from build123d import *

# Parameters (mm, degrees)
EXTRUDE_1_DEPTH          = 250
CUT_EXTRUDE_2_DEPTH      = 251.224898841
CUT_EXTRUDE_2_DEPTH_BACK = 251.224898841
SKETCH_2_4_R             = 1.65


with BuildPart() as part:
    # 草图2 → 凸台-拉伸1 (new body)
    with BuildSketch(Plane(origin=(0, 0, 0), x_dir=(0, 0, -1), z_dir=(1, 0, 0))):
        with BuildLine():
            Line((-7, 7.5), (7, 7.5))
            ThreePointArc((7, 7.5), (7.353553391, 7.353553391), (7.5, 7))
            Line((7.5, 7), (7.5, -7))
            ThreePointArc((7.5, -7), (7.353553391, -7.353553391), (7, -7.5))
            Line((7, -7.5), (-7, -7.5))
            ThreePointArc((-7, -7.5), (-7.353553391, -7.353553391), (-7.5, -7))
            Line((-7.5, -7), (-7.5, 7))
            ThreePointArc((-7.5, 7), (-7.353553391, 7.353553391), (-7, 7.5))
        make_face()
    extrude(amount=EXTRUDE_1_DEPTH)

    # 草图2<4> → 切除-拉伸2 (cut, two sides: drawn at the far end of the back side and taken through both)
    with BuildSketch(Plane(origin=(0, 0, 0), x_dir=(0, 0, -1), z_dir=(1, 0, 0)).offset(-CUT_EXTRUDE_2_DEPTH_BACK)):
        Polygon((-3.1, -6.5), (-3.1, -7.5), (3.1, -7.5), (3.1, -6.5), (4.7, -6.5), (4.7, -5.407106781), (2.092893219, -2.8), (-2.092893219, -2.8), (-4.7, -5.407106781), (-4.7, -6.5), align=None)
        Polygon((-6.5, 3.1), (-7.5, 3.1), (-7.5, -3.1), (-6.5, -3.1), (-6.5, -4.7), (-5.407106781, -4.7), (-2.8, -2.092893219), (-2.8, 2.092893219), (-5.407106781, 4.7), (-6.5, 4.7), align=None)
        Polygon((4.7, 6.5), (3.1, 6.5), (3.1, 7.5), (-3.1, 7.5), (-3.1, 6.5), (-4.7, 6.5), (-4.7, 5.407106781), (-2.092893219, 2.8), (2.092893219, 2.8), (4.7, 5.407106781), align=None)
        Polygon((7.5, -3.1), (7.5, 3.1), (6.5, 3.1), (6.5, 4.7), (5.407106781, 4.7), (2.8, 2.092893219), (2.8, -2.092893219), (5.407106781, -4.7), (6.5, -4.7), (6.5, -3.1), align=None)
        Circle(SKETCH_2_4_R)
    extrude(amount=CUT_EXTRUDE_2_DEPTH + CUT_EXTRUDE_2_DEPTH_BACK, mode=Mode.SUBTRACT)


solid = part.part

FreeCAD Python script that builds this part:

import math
import FreeCAD as App
import Part
import Sketcher

V = App.Vector

doc = App.newDocument("Part")
body = doc.addObject("PartDesign::Body", "Body")

sketch1 = body.newObject("Sketcher::SketchObject", "Sketch")
sketch1.AttachmentSupport = (doc.getObject("YZ_Plane"), [""])
sketch1.MapMode = "FlatFace"
sketch1.addGeometry([
    Part.LineSegment(V(7.5, -7, 0), V(7.5, 7, 0)),
    Part.ArcOfCircle(Part.Circle(V(7, 7, 0), V(0, 0, 1), 0.5), math.radians(0), math.radians(90)),
    Part.LineSegment(V(7, 7.5, 0), V(-7, 7.5, 0)),
    Part.ArcOfCircle(Part.Circle(V(-7, 7, 0), V(0, 0, 1), 0.5), math.radians(90), math.radians(180)),
    Part.LineSegment(V(-7.5, 7, 0), V(-7.5, -7, 0)),
    Part.ArcOfCircle(Part.Circle(V(-7, -7, 0), V(0, 0, 1), 0.5), math.radians(180), math.radians(270)),
    Part.LineSegment(V(-7, -7.5, 0), V(7, -7.5, 0)),
    Part.ArcOfCircle(Part.Circle(V(7, -7, 0), V(0, 0, 1), 0.5), math.radians(-90), math.radians(0)),
], False)
sketch1.addConstraint([
    Sketcher.Constraint("Tangent", 0, 2, 1, 1),
    Sketcher.Constraint("Tangent", 1, 2, 2, 1),
    Sketcher.Constraint("Tangent", 2, 2, 3, 1),
    Sketcher.Constraint("Tangent", 3, 2, 4, 1),
    Sketcher.Constraint("Tangent", 4, 2, 5, 1),
    Sketcher.Constraint("Tangent", 5, 2, 6, 1),
    Sketcher.Constraint("Tangent", 6, 2, 7, 1),
    Sketcher.Constraint("Tangent", 7, 2, 0, 1),
    Sketcher.Constraint("Vertical", 0),
    Sketcher.Constraint("Horizontal", 2),
    Sketcher.Constraint("Vertical", 4),
    Sketcher.Constraint("Horizontal", 6),
    Sketcher.Constraint("Equal", 1, 3),
    Sketcher.Constraint("Equal", 3, 5),
    Sketcher.Constraint("Equal", 5, 7),
    Sketcher.Constraint("Symmetric", 1, 3, 5, 3, -1, 1),
    Sketcher.Constraint("Equal", 6, 0),
    Sketcher.Constraint("Radius", 1, 0.5),
    Sketcher.Constraint("DistanceX", 2, 2, 2, 1, 14.0),
])
pad1 = body.newObject("PartDesign::Pad", "Pad")
pad1.Profile = sketch1
pad1.Length = 250

sketch2 = body.newObject("Sketcher::SketchObject", "Sketch001")
sketch2.AttachmentSupport = (doc.getObject("YZ_Plane"), [""])
sketch2.MapMode = "FlatFace"
sketch2.addGeometry([
    Part.LineSegment(V(-6.5, 3.1, 0), V(-7.5, 3.1, 0)),
    Part.LineSegment(V(-7.5, 3.1, 0), V(-7.5, -3.1, 0)),
    Part.LineSegment(V(-7.5, -3.1, 0), V(-6.5, -3.1, 0)),
    Part.LineSegment(V(-6.5, -3.1, 0), V(-6.5, -4.7, 0)),
    Part.LineSegment(V(-6.5, -4.7, 0), V(-5.4, -4.7, 0)),
    Part.LineSegment(V(-5.4, -4.7, 0), V(-2.8, -2.1, 0)),
    Part.LineSegment(V(-2.8, -2.1, 0), V(-2.8, 2.1, 0)),
    Part.LineSegment(V(-2.8, 2.1, 0), V(-5.4, 4.7, 0)),
    Part.LineSegment(V(-5.4, 4.7, 0), V(-6.5, 4.7, 0)),
    Part.LineSegment(V(-6.5, 4.7, 0), V(-6.5, 3.1, 0)),
    Part.LineSegment(V(3.1, 6.5, 0), V(3.1, 7.5, 0)),
    Part.LineSegment(V(3.1, 7.5, 0), V(-3.1, 7.5, 0)),
    Part.LineSegment(V(-3.1, 7.5, 0), V(-3.1, 6.5, 0)),
    Part.LineSegment(V(-3.1, 6.5, 0), V(-4.7, 6.5, 0)),
    Part.LineSegment(V(-4.7, 6.5, 0), V(-4.7, 5.4, 0)),
    Part.LineSegment(V(-4.7, 5.4, 0), V(-2.1, 2.8, 0)),
    Part.LineSegment(V(-2.1, 2.8, 0), V(2.1, 2.8, 0)),
    Part.LineSegment(V(2.1, 2.8, 0), V(4.7, 5.4, 0)),
    Part.LineSegment(V(4.7, 5.4, 0), V(4.7, 6.5, 0)),
    Part.LineSegment(V(4.7, 6.5, 0), V(3.1, 6.5, 0)),
    Part.LineSegment(V(6.5, -4.7, 0), V(6.5, -3.1, 0)),
    Part.LineSegment(V(6.5, -3.1, 0), V(7.5, -3.1, 0)),
    Part.LineSegment(V(7.5, -3.1, 0), V(7.5, 3.1, 0)),
    Part.LineSegment(V(7.5, 3.1, 0), V(6.5, 3.1, 0)),
    Part.LineSegment(V(6.5, 3.1, 0), V(6.5, 4.7, 0)),
    Part.LineSegment(V(6.5, 4.7, 0), V(5.4, 4.7, 0)),
    Part.LineSegment(V(5.4, 4.7, 0), V(2.8, 2.1, 0)),
    Part.LineSegment(V(2.8, 2.1, 0), V(2.8, -2.1, 0)),
    Part.LineSegment(V(2.8, -2.1, 0), V(5.4, -4.7, 0)),
    Part.LineSegment(V(5.4, -4.7, 0), V(6.5, -4.7, 0)),
    Part.LineSegment(V(-3.1, -7.5, 0), V(3.1, -7.5, 0)),
    Part.LineSegment(V(3.1, -7.5, 0), V(3.1, -6.5, 0)),
    Part.LineSegment(V(3.1, -6.5, 0), V(4.7, -6.5, 0)),
    Part.LineSegment(V(4.7, -6.5, 0), V(4.7, -5.4, 0)),
    Part.LineSegment(V(4.7, -5.4, 0), V(2.1, -2.8, 0)),
    Part.LineSegment(V(2.1, -2.8, 0), V(-2.1, -2.8, 0)),
    Part.LineSegment(V(-2.1, -2.8, 0), V(-4.7, -5.4, 0)),
    Part.LineSegment(V(-4.7, -5.4, 0), V(-4.7, -6.5, 0)),
    Part.LineSegment(V(-4.7, -6.5, 0), V(-3.1, -6.5, 0)),
    Part.LineSegment(V(-3.1, -6.5, 0), V(-3.1, -7.5, 0)),
    Part.Circle(V(0, 0, 0), V(0, 0, 1), 1.6),
], False)
sketch2.addConstraint([
    Sketcher.Constraint("Coincident", 0, 2, 1, 1),
    Sketcher.Constraint("Coincident", 1, 2, 2, 1),
    Sketcher.Constraint("Coincident", 2, 2, 3, 1),
    Sketcher.Constraint("Coincident", 3, 2, 4, 1),
    Sketcher.Constraint("Coincident", 4, 2, 5, 1),
    Sketcher.Constraint("Coincident", 5, 2, 6, 1),
    Sketcher.Constraint("Coincident", 6, 2, 7, 1),
    Sketcher.Constraint("Coincident", 7, 2, 8, 1),
    Sketcher.Constraint("Coincident", 8, 2, 9, 1),
    Sketcher.Constraint("Coincident", 9, 2, 0, 1),
    Sketcher.Constraint("Coincident", 10, 2, 11, 1),
    Sketcher.Constraint("Coincident", 11, 2, 12, 1),
    Sketcher.Constraint("Coincident", 12, 2, 13, 1),
    Sketcher.Constraint("Coincident", 13, 2, 14, 1),
    Sketcher.Constraint("Coincident", 14, 2, 15, 1),
    Sketcher.Constraint("Coincident", 15, 2, 16, 1),
    Sketcher.Constraint("Coincident", 16, 2, 17, 1),
    Sketcher.Constraint("Coincident", 17, 2, 18, 1),
    Sketcher.Constraint("Coincident", 18, 2, 19, 1),
    Sketcher.Constraint("Coincident", 19, 2, 10, 1),
    Sketcher.Constraint("Coincident", 20, 2, 21, 1),
    Sketcher.Constraint("Coincident", 21, 2, 22, 1),
    Sketcher.Constraint("Coincident", 22, 2, 23, 1),
    Sketcher.Constraint("Coincident", 23, 2, 24, 1),
    Sketcher.Constraint("Coincident", 24, 2, 25, 1),
    Sketcher.Constraint("Coincident", 25, 2, 26, 1),
    Sketcher.Constraint("Coincident", 26, 2, 27, 1),
    Sketcher.Constraint("Coincident", 27, 2, 28, 1),
    Sketcher.Constraint("Coincident", 28, 2, 29, 1),
    Sketcher.Constraint("Coincident", 29, 2, 20, 1),
    Sketcher.Constraint("Coincident", 30, 2, 31, 1),
    Sketcher.Constraint("Coincident", 31, 2, 32, 1),
    Sketcher.Constraint("Coincident", 32, 2, 33, 1),
    Sketcher.Constraint("Coincident", 33, 2, 34, 1),
    Sketcher.Constraint("Coincident", 34, 2, 35, 1),
    Sketcher.Constraint("Coincident", 35, 2, 36, 1),
    Sketcher.Constraint("Coincident", 36, 2, 37, 1),
    Sketcher.Constraint("Coincident", 37, 2, 38, 1),
    Sketcher.Constraint("Coincident", 38, 2, 39, 1),
    Sketcher.Constraint("Coincident", 39, 2, 30, 1),
    Sketcher.Constraint("Horizontal", 0),
    Sketcher.Constraint("Vertical", 1),
    Sketcher.Constraint("Horizontal", 2),
    Sketcher.Constraint("Vertical", 3),
    Sketcher.Constraint("Horizontal", 4),
    Sketcher.Constraint("Vertical", 6),
    Sketcher.Constraint("Horizontal", 8),
    Sketcher.Constraint("Vertical", 9),
    Sketcher.Constraint("Vertical", 10),
    Sketcher.Constraint("Horizontal", 11),
    Sketcher.Constraint("Vertical", 12),
    Sketcher.Constraint("Horizontal", 13),
    Sketcher.Constraint("Vertical", 14),
    Sketcher.Constraint("Horizontal", 16),
    Sketcher.Constraint("Vertical", 18),
    Sketcher.Constraint("Horizontal", 19),
    Sketcher.Constraint("Vertical", 20),
    Sketcher.Constraint("Horizontal", 21),
    Sketcher.Constraint("Vertical", 22),
    Sketcher.Constraint("Horizontal", 23),
    Sketcher.Constraint("Vertical", 24),
    Sketcher.Constraint("Horizontal", 25),
    Sketcher.Constraint("Vertical", 27),
    Sketcher.Constraint("Horizontal", 29),
    Sketcher.Constraint("Horizontal", 30),
    Sketcher.Constraint("Vertical", 31),
    Sketcher.Constraint("Horizontal", 32),
    Sketcher.Constraint("Vertical", 33),
    Sketcher.Constraint("Horizontal", 35),
    Sketcher.Constraint("Vertical", 37),
    Sketcher.Constraint("Horizontal", 38),
    Sketcher.Constraint("Vertical", 39),
    Sketcher.Constraint("Coincident", 40, 3, -1, 1),
    Sketcher.Constraint("Symmetric", 9, 2, 20, 2, -1, 1),
    Sketcher.Constraint("Symmetric", 1, 2, 22, 2, -1, 1),
    Sketcher.Constraint("Symmetric", 3, 2, 24, 2, -1, 1),
    Sketcher.Constraint("Symmetric", 5, 2, 26, 2, -1, 1),
    Sketcher.Constraint("Symmetric", 7, 2, 28, 2, -1, 1),
    Sketcher.Constraint("Symmetric", 11, 2, 30, 2, -1, 1),
    Sketcher.Constraint("Symmetric", 13, 2, 32, 2, -1, 1),
    Sketcher.Constraint("Symmetric", 15, 2, 34, 2, -1, 1),
    Sketcher.Constraint("Symmetric", 17, 2, 36, 2, -1, 1),
    Sketcher.Constraint("Symmetric", 19, 2, 38, 2, -1, 1),
    Sketcher.Constraint("Symmetric", 14, 2, 17, 2, -2),
    Sketcher.Constraint("Symmetric", 12, 2, 19, 2, -2),
    Sketcher.Constraint("Symmetric", 2, 2, 20, 2, -2),
    Sketcher.Constraint("Symmetric", 7, 2, 25, 2, -2),
    Sketcher.Constraint("Perpendicular", 5, 7),
    Sketcher.Constraint("Parallel", 7, 15),
    Sketcher.Constraint("Perpendicular", 15, 17),
    Sketcher.Constraint("Parallel", 17, 26),
    Sketcher.Constraint("Perpendicular", 26, 28),
    Sketcher.Constraint("Parallel", 28, 34),
    Sketcher.Constraint("Perpendicular", 34, 36),
    Sketcher.Constraint("Horizontal", 6, 2, 26, 2),
    Sketcher.Constraint("Equal", 30, 1),
    Sketcher.Constraint("Equal", 38, 3),
    Sketcher.Constraint("Equal", 35, 6),
    Sketcher.Constraint("Equal", 23, 10),
    Sketcher.Constraint("Equal", 29, 14),
    Sketcher.Constraint("Diameter", 40, 3.3),
    Sketcher.Constraint("DistanceX", 0, 2, 0, 1, 1.0),
    Sketcher.Constraint("DistanceX", 11, 2, 11, 1, 6.2),
    Sketcher.Constraint("DistanceX", 13, 2, 13, 1, 1.6),
    Sketcher.Constraint("DistanceX", 0, 2, -1, 1, 7.5),
    Sketcher.Constraint("DistanceX", 5, 2, -1, 1, 2.8),
    Sketcher.Constraint("DistanceY", -1, 1, 10, 2, 7.5),
    Sketcher.Constraint("DistanceX", 4, 1, 4, 2, 1.092893),
])
pocket1 = body.newObject("PartDesign::Pocket", "Pocket")
pocket1.Profile = sketch2
pocket1.Type = "ThroughAll"
pocket1.Midplane = True

doc.recompute()
